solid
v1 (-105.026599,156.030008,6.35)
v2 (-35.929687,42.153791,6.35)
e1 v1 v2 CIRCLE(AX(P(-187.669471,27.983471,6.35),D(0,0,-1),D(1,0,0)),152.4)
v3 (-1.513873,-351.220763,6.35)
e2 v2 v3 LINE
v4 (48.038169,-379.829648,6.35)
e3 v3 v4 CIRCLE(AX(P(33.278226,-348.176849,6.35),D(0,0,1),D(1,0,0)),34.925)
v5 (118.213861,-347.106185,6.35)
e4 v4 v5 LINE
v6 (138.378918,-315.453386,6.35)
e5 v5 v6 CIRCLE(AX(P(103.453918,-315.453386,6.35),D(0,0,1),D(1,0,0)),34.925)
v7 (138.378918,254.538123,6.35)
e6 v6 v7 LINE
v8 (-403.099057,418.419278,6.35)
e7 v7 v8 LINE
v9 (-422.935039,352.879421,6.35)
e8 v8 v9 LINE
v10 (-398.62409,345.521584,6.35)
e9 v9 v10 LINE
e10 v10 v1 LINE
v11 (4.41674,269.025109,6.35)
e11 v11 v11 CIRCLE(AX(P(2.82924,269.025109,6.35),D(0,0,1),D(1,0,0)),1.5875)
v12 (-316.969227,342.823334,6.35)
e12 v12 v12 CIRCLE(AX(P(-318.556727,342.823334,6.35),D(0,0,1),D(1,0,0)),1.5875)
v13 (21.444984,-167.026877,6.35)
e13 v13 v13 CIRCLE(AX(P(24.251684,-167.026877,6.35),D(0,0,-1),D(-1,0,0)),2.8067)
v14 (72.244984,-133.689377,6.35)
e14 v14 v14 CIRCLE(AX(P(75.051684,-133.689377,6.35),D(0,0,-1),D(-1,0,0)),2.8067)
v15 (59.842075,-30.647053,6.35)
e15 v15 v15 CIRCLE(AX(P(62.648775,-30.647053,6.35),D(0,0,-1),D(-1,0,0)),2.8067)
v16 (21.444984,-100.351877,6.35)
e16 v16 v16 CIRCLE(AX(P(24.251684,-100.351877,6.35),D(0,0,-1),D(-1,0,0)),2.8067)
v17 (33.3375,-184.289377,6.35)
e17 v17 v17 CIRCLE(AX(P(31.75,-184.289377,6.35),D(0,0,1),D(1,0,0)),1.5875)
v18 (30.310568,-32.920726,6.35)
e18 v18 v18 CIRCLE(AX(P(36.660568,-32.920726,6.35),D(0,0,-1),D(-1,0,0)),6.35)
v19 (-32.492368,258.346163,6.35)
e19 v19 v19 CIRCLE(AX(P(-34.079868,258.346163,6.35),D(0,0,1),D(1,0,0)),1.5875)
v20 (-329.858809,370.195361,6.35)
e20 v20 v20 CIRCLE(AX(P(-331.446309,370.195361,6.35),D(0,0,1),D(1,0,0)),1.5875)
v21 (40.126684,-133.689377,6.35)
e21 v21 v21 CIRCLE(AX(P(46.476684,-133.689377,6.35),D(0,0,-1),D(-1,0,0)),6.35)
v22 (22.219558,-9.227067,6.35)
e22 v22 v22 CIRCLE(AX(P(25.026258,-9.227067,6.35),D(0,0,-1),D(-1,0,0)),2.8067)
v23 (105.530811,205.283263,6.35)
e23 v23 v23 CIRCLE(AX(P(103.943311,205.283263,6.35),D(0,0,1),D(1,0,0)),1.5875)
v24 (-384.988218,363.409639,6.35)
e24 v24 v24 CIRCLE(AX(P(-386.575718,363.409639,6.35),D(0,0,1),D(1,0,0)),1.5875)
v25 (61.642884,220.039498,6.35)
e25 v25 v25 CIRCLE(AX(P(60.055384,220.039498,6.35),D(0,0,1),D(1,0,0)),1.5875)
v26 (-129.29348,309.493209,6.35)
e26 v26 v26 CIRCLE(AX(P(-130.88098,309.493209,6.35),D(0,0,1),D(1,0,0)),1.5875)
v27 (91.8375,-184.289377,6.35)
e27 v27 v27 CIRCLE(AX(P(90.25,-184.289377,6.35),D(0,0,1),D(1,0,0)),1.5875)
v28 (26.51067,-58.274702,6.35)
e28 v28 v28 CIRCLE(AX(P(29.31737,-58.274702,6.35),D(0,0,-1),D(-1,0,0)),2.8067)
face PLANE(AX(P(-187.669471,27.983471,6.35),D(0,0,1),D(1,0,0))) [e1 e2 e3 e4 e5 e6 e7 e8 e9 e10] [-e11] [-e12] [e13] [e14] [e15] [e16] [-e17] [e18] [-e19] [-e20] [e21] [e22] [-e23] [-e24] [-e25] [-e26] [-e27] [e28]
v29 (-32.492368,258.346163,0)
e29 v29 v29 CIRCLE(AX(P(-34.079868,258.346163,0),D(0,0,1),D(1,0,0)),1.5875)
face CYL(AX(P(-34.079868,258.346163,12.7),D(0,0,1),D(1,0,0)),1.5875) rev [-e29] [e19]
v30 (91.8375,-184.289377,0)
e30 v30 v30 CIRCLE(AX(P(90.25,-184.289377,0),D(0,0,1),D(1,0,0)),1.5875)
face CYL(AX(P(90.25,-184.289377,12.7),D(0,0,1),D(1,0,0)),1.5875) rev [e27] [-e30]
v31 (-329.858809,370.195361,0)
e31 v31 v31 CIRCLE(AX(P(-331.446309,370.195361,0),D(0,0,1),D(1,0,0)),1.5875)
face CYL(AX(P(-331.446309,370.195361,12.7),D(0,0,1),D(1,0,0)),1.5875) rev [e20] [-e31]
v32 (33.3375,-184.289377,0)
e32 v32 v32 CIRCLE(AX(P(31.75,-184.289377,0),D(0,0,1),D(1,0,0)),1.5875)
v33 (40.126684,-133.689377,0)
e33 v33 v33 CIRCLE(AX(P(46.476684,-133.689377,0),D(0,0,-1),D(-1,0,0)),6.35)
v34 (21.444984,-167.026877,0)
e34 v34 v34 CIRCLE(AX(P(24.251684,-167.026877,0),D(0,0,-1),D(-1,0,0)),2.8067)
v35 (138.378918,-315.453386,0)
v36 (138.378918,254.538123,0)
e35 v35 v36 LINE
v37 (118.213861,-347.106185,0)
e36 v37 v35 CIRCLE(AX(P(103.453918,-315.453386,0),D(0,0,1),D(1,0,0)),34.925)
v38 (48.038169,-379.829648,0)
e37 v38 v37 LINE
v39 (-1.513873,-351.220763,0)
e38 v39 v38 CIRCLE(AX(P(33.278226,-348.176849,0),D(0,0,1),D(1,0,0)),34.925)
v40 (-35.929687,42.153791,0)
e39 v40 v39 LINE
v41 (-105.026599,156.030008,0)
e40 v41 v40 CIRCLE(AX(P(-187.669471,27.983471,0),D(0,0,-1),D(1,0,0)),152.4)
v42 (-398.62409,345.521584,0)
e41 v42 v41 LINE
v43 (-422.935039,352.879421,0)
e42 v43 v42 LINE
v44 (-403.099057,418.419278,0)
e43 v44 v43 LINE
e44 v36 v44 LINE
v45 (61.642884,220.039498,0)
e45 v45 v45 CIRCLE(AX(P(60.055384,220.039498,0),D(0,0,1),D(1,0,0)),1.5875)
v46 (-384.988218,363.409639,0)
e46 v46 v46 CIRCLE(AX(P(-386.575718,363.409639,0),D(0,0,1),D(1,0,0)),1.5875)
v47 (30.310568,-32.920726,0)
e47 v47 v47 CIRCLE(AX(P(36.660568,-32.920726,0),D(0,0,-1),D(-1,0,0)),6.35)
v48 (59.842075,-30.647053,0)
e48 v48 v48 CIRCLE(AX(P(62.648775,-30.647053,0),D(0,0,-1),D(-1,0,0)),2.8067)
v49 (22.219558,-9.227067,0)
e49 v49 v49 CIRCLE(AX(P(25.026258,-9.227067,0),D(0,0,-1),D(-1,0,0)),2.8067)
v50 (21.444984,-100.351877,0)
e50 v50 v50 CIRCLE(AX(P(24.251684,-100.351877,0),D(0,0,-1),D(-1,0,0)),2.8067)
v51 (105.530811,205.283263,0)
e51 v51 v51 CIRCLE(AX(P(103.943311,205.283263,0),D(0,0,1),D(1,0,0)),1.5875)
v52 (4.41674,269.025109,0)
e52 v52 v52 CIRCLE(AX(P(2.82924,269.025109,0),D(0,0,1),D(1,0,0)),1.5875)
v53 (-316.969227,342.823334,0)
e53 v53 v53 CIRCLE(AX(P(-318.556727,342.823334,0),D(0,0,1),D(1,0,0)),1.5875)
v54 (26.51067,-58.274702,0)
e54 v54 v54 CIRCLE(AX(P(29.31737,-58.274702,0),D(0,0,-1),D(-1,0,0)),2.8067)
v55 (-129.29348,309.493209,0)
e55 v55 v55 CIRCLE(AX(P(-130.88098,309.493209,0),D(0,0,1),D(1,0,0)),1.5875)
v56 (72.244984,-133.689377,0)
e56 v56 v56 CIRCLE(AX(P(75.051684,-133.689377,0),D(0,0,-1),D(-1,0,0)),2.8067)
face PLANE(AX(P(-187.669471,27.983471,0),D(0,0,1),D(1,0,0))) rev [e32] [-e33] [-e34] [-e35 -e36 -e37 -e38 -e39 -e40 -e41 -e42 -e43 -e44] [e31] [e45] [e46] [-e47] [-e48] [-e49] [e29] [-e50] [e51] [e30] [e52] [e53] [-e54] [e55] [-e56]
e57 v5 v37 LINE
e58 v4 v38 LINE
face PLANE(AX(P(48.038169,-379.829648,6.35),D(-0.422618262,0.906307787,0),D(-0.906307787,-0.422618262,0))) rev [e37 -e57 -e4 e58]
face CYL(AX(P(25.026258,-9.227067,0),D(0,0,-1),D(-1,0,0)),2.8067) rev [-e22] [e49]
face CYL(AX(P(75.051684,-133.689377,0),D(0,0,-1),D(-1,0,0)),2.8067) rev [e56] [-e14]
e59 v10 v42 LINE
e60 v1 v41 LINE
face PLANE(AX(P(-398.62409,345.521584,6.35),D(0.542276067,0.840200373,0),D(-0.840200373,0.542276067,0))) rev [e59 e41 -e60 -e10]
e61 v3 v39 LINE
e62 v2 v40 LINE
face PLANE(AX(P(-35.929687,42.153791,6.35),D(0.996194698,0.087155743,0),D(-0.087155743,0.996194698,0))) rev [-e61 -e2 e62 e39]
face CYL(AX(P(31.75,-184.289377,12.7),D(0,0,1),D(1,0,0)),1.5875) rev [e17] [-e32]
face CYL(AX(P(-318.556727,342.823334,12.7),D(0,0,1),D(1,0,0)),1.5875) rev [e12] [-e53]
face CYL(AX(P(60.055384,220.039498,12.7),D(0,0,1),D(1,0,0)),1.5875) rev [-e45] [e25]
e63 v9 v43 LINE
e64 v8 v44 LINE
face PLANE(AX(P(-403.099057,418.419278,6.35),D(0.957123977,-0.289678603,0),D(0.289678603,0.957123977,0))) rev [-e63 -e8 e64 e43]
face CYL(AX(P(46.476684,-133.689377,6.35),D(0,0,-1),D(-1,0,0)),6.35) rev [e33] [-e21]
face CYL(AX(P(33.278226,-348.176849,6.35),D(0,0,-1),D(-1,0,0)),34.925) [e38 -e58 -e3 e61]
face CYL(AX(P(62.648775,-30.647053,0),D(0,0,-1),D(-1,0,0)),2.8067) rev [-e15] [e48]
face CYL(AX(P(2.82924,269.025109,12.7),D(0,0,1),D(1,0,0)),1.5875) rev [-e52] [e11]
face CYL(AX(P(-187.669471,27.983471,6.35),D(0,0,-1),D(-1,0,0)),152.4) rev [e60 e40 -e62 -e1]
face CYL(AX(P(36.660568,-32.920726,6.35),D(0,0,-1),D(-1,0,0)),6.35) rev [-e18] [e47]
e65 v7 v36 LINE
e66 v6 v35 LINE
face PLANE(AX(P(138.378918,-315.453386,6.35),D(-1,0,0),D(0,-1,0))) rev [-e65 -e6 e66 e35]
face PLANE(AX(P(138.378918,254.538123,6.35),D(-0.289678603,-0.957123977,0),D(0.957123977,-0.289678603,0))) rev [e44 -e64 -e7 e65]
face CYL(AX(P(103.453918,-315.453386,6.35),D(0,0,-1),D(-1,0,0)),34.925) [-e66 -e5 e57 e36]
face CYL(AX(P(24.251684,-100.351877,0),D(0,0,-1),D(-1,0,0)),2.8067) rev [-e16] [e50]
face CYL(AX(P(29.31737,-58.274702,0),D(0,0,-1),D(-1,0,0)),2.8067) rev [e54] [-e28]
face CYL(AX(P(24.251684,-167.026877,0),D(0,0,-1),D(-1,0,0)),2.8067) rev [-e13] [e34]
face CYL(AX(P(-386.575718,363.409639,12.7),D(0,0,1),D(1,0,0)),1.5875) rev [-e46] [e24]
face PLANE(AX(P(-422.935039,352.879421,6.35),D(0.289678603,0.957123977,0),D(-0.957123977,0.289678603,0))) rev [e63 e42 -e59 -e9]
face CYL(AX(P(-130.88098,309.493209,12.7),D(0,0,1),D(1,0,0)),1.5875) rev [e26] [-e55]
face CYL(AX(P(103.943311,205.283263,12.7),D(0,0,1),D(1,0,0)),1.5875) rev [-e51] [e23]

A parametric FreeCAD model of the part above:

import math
import FreeCAD as App
import Part
import Sketcher

V = App.Vector
Q = App.Units.Quantity

doc = App.newDocument("Part")
body = doc.addObject("PartDesign::Body", "Body")

sketch1 = body.newObject("Sketcher::SketchObject", "Sketch")
sketch1.AttachmentSupport = (doc.getObject("XY_Plane"), [""])
sketch1.MapMode = "FlatFace"
sketch1.addGeometry([
    Part.LineSegment(V(-36, 42, 0), V(-2, -351, 0)),
    Part.ArcOfCircle(Part.Circle(V(33, -348, 0), V(0, 0, 1), 35), math.radians(-175), math.radians(-65)),
    Part.LineSegment(V(48, -380, 0), V(118, -347, 0)),
    Part.ArcOfCircle(Part.Circle(V(103, -315, 0), V(0, 0, 1), 35), math.radians(-65), math.radians(0)),
    Part.LineSegment(V(138, -315, 0), V(138, 255, 0)),
    Part.LineSegment(V(138, 255, 0), V(-403, 418, 0)),
    Part.LineSegment(V(-403, 418, 0), V(-423, 353, 0)),
    Part.LineSegment(V(-423, 353, 0), V(-399, 346, 0)),
    Part.LineSegment(V(-399, 346, 0), V(-105, 156, 0)),
    Part.ArcOfCircle(Part.Circle(V(-188, 28, 0), V(0, 0, 1), 152), math.radians(5), math.radians(57)),
], False)
sketch1.addConstraint([
    Sketcher.Constraint("Tangent", 0, 2, 1, 1),
    Sketcher.Constraint("Tangent", 1, 2, 2, 1),
    Sketcher.Constraint("Tangent", 2, 2, 3, 1),
    Sketcher.Constraint("Tangent", 3, 2, 4, 1),
    Sketcher.Constraint("Coincident", 4, 2, 5, 1),
    Sketcher.Constraint("Coincident", 5, 2, 6, 1),
    Sketcher.Constraint("Coincident", 6, 2, 7, 1),
    Sketcher.Constraint("Coincident", 7, 2, 8, 1),
    Sketcher.Constraint("Tangent", 8, 2, 9, 2),
    Sketcher.Constraint("Coincident", 9, 1, 0, 1),
    Sketcher.Constraint("Vertical", 4),
    Sketcher.Constraint("Equal", 1, 3),
    Sketcher.Constraint("Perpendicular", 5, 6),
    Sketcher.Constraint("Perpendicular", 6, 7),
    Sketcher.Constraint("Radius", 9, Q("6 in")),
    Sketcher.Constraint("Distance", 7, Q("1 in")),
    Sketcher.Constraint("Angle", 0, Q("-85 deg")),
    Sketcher.Constraint("Angle", 2, Q("25 deg")),
    Sketcher.Constraint("Radius", 1, Q("1.375 in")),
    Sketcher.Constraint("DistanceY", -1, 1, 5, 2, Q("16.4731999 in")),
    Sketcher.Constraint("DistanceX", 7, 2, 9, 3, Q("8.3053 in")),
    Sketcher.Constraint("DistanceY", 4, 1, 4, 2, 569.991509),
    Sketcher.Constraint("DistanceX", 8, 2, -1, 1, 105.026599),
    Sketcher.Constraint("DistanceY", 4, 2, 6, 2, 98.341298),
    Sketcher.Constraint("Distance", 0, 394.87718),
    Sketcher.Constraint("Distance", 2, 77.430309),
    Sketcher.Constraint("Distance", 6, 68.475829),
    Sketcher.Constraint("Distance", 8, 349.437469),
])
pad1 = body.newObject("PartDesign::Pad", "Pad")
pad1.Profile = sketch1
pad1.Length = Q("0.25 in")

sketch2 = body.newObject("Sketcher::SketchObject", "Sketch001")
sketch2.AttachmentSupport = (doc.getObject("XY_Plane"), [""])
sketch2.MapMode = "FlatFace"
sketch2.addGeometry([
    Part.Circle(V(24.3, -100.4, 0), V(0, 0, 1), 2.8),
    Part.Circle(V(24.3, -167, 0), V(0, 0, 1), 2.8),
    Part.Circle(V(75.1, -133.7, 0), V(0, 0, 1), 2.8),
    Part.Circle(V(29.3, -58.3, 0), V(0, 0, 1), 2.8),
    Part.Circle(V(25, -9.2, 0), V(0, 0, 1), 2.8),
    Part.Circle(V(62.6, -30.6, 0), V(0, 0, 1), 2.8),
], False)
sketch2.addConstraint([
    Sketcher.Constraint("Equal", 0, 1),
    Sketcher.Constraint("Equal", 1, 2),
    Sketcher.Constraint("Equal", 2, 3),
    Sketcher.Constraint("Equal", 3, 4),
    Sketcher.Constraint("Equal", 4, 5),
    Sketcher.Constraint("Vertical", 0, 3, 1, 3),
    Sketcher.Constraint("Diameter", 0, Q("0.221 in")),
    Sketcher.Constraint("DistanceX", 0, 3, 2, 3, Q("2 in")),
    Sketcher.Constraint("DistanceY", 1, 3, 0, 3, Q("2.625 in")),
    Sketcher.Constraint("DistanceY", 2, 3, 0, 3, Q("1.3125 in")),
    Sketcher.Constraint("DistanceX", -1, 1, 3, 3, 29.31737),
    Sketcher.Constraint("DistanceY", 0, 3, 4, 3, 91.12481),
    Sketcher.Constraint("DistanceY", 3, 3, 5, 3, 27.62765),
    Sketcher.Constraint("DistanceX", 0, 3, 5, 3, 38.397091),
    Sketcher.Constraint("DistanceX", -1, 1, 0, 3, 24.251684),
    Sketcher.Constraint("DistanceY", 0, 3, -1, 1, 100.351877),
    Sketcher.Constraint("DistanceY", 3, 3, -1, 1, 58.274702),
    Sketcher.Constraint("DistanceX", -1, 1, 4, 3, 25.026258),
])
doc.recompute()
hole = body.newObject("PartDesign::Hole", "Hole")
hole.Profile = sketch2
hole.ThreadType = "None"
hole.Diameter = Q("0.221 in")
hole.DepthType = "ThroughAll"
hole.Reversed = True

sketch3 = body.newObject("Sketcher::SketchObject", "Sketch002")
sketch3.AttachmentSupport = (doc.getObject("XY_Plane"), [""])
sketch3.MapMode = "FlatFace"
sketch3.addGeometry([
    Part.Circle(V(46, -134, 0), V(0, 0, 1), 6),
    Part.Circle(V(37, -33, 0), V(0, 0, 1), 6),
], False)
sketch3.addConstraint([
    Sketcher.Constraint("Equal", 0, 1),
    Sketcher.Constraint("Diameter", 0, Q("0.5 in")),
    Sketcher.Constraint("DistanceX", -1, 1, 1, 3, 36.660568),
    Sketcher.Constraint("DistanceY", 0, 3, 1, 3, 100.768651),
    Sketcher.Constraint("DistanceX", -1, 1, 0, 3, 46.476684),
    Sketcher.Constraint("DistanceY", 0, 3, -1, 1, 133.689377),
])
pocket1 = body.newObject("PartDesign::Pocket", "Pocket")
pocket1.Profile = sketch3
pocket1.Type = "ThroughAll"
pocket1.Reversed = True

sketch4 = body.newObject("Sketcher::SketchObject", "Sketch003")
sketch4.AttachmentSupport = (doc.getObject("XY_Plane"), [""])
sketch4.MapMode = "FlatFace"
sketch4.AttachmentOffset = App.Placement(V(0, 0, 0.5 * 25.4), App.Rotation())
sketch4.addGeometry([
    Part.Circle(V(-331.4, 370.2, 0), V(0, 0, 1), 1.6),
    Part.Circle(V(31.8, -184.3, 0), V(0, 0, 1), 1.6),
    Part.Circle(V(90.3, -184.3, 0), V(0, 0, 1), 1.6),
    Part.Circle(V(103.9, 205.3, 0), V(0, 0, 1), 1.6),
    Part.Circle(V(60.1, 220, 0), V(0, 0, 1), 1.6),
    Part.Circle(V(-34.1, 258.3, 0), V(0, 0, 1), 1.6),
    Part.Circle(V(-386.6, 363.4, 0), V(0, 0, 1), 1.6),
    Part.Circle(V(-318.6, 342.8, 0), V(0, 0, 1), 1.6),
    Part.Circle(V(-130.9, 309.5, 0), V(0, 0, 1), 1.6),
    Part.Circle(V(2.8, 269, 0), V(0, 0, 1), 1.6),
], False)
sketch4.addConstraint([
    Sketcher.Constraint("Equal", 0, 1),
    Sketcher.Constraint("Equal", 1, 2),
    Sketcher.Constraint("Equal", 2, 3),
    Sketcher.Constraint("Equal", 3, 4),
    Sketcher.Constraint("Equal", 4, 5),
    Sketcher.Constraint("Equal", 5, 6),
    Sketcher.Constraint("Equal", 6, 7),
    Sketcher.Constraint("Equal", 7, 8),
    Sketcher.Constraint("Equal", 8, 9),
    Sketcher.Constraint("Horizontal", 1, 3, 2, 3),
    Sketcher.Constraint("Diameter", 0, Q("0.125 in")),
    Sketcher.Constraint("DistanceX", -1, 1, 1, 3, Q("1.25 in")),
    Sketcher.Constraint("DistanceX", -1, 1, 2, 3, 90.25),
    Sketcher.Constraint("DistanceY", 3, 3, 0, 3, 164.912098),
    Sketcher.Constraint("DistanceY", 3, 3, 5, 3, 53.0629),
    Sketcher.Constraint("DistanceY", 9, 3, 8, 3, 40.468101),
    Sketcher.Constraint("DistanceX", 0, 3, -1, 1, 331.44631),
    Sketcher.Constraint("DistanceY", -1, 1, 0, 3, 370.195361),
    Sketcher.Constraint("DistanceX", -1, 1, 3, 3, 103.943311),
    Sketcher.Constraint("DistanceX", 5, 3, -1, 1, 34.079868),
    Sketcher.Constraint("DistanceY", -1, 1, 6, 3, 363.409639),
    Sketcher.Constraint("DistanceX", 8, 3, -1, 1, 130.88098),
    Sketcher.Constraint("DistanceY", -1, 1, 8, 3, 309.493209),
    Sketcher.Constraint("DistanceX", -1, 1, 9, 3, 2.829239),
    Sketcher.Constraint("DistanceY", 2, 3, 3, 3, 389.57264),
    Sketcher.Constraint("DistanceX", 6, 3, 0, 3, 55.129408),
    Sketcher.Constraint("DistanceY", 4, 3, 6, 3, 143.370141),
    Sketcher.Constraint("DistanceX", 6, 3, 7, 3, 68.018991),
    Sketcher.Constraint("DistanceY", 5, 3, 7, 3, 84.477171),
    Sketcher.Constraint("DistanceX", 7, 3, 4, 3, 378.612111),
])
doc.recompute()
hole2 = body.newObject("PartDesign::Hole", "Hole001")
hole2.Profile = sketch4
hole2.ThreadType = "None"
hole2.Diameter = Q("0.125 in")
hole2.DepthType = "Dimension"
hole2.Depth = Q("1.25 in")
hole2.DrillPoint = "Angled"
hole2.DrillPointAngle = 118
hole2.HoleCutType = "Countersink"
hole2.HoleCutDiameter = Q("0.4 in")
hole2.HoleCutCountersinkAngle = 82

doc.recompute()
